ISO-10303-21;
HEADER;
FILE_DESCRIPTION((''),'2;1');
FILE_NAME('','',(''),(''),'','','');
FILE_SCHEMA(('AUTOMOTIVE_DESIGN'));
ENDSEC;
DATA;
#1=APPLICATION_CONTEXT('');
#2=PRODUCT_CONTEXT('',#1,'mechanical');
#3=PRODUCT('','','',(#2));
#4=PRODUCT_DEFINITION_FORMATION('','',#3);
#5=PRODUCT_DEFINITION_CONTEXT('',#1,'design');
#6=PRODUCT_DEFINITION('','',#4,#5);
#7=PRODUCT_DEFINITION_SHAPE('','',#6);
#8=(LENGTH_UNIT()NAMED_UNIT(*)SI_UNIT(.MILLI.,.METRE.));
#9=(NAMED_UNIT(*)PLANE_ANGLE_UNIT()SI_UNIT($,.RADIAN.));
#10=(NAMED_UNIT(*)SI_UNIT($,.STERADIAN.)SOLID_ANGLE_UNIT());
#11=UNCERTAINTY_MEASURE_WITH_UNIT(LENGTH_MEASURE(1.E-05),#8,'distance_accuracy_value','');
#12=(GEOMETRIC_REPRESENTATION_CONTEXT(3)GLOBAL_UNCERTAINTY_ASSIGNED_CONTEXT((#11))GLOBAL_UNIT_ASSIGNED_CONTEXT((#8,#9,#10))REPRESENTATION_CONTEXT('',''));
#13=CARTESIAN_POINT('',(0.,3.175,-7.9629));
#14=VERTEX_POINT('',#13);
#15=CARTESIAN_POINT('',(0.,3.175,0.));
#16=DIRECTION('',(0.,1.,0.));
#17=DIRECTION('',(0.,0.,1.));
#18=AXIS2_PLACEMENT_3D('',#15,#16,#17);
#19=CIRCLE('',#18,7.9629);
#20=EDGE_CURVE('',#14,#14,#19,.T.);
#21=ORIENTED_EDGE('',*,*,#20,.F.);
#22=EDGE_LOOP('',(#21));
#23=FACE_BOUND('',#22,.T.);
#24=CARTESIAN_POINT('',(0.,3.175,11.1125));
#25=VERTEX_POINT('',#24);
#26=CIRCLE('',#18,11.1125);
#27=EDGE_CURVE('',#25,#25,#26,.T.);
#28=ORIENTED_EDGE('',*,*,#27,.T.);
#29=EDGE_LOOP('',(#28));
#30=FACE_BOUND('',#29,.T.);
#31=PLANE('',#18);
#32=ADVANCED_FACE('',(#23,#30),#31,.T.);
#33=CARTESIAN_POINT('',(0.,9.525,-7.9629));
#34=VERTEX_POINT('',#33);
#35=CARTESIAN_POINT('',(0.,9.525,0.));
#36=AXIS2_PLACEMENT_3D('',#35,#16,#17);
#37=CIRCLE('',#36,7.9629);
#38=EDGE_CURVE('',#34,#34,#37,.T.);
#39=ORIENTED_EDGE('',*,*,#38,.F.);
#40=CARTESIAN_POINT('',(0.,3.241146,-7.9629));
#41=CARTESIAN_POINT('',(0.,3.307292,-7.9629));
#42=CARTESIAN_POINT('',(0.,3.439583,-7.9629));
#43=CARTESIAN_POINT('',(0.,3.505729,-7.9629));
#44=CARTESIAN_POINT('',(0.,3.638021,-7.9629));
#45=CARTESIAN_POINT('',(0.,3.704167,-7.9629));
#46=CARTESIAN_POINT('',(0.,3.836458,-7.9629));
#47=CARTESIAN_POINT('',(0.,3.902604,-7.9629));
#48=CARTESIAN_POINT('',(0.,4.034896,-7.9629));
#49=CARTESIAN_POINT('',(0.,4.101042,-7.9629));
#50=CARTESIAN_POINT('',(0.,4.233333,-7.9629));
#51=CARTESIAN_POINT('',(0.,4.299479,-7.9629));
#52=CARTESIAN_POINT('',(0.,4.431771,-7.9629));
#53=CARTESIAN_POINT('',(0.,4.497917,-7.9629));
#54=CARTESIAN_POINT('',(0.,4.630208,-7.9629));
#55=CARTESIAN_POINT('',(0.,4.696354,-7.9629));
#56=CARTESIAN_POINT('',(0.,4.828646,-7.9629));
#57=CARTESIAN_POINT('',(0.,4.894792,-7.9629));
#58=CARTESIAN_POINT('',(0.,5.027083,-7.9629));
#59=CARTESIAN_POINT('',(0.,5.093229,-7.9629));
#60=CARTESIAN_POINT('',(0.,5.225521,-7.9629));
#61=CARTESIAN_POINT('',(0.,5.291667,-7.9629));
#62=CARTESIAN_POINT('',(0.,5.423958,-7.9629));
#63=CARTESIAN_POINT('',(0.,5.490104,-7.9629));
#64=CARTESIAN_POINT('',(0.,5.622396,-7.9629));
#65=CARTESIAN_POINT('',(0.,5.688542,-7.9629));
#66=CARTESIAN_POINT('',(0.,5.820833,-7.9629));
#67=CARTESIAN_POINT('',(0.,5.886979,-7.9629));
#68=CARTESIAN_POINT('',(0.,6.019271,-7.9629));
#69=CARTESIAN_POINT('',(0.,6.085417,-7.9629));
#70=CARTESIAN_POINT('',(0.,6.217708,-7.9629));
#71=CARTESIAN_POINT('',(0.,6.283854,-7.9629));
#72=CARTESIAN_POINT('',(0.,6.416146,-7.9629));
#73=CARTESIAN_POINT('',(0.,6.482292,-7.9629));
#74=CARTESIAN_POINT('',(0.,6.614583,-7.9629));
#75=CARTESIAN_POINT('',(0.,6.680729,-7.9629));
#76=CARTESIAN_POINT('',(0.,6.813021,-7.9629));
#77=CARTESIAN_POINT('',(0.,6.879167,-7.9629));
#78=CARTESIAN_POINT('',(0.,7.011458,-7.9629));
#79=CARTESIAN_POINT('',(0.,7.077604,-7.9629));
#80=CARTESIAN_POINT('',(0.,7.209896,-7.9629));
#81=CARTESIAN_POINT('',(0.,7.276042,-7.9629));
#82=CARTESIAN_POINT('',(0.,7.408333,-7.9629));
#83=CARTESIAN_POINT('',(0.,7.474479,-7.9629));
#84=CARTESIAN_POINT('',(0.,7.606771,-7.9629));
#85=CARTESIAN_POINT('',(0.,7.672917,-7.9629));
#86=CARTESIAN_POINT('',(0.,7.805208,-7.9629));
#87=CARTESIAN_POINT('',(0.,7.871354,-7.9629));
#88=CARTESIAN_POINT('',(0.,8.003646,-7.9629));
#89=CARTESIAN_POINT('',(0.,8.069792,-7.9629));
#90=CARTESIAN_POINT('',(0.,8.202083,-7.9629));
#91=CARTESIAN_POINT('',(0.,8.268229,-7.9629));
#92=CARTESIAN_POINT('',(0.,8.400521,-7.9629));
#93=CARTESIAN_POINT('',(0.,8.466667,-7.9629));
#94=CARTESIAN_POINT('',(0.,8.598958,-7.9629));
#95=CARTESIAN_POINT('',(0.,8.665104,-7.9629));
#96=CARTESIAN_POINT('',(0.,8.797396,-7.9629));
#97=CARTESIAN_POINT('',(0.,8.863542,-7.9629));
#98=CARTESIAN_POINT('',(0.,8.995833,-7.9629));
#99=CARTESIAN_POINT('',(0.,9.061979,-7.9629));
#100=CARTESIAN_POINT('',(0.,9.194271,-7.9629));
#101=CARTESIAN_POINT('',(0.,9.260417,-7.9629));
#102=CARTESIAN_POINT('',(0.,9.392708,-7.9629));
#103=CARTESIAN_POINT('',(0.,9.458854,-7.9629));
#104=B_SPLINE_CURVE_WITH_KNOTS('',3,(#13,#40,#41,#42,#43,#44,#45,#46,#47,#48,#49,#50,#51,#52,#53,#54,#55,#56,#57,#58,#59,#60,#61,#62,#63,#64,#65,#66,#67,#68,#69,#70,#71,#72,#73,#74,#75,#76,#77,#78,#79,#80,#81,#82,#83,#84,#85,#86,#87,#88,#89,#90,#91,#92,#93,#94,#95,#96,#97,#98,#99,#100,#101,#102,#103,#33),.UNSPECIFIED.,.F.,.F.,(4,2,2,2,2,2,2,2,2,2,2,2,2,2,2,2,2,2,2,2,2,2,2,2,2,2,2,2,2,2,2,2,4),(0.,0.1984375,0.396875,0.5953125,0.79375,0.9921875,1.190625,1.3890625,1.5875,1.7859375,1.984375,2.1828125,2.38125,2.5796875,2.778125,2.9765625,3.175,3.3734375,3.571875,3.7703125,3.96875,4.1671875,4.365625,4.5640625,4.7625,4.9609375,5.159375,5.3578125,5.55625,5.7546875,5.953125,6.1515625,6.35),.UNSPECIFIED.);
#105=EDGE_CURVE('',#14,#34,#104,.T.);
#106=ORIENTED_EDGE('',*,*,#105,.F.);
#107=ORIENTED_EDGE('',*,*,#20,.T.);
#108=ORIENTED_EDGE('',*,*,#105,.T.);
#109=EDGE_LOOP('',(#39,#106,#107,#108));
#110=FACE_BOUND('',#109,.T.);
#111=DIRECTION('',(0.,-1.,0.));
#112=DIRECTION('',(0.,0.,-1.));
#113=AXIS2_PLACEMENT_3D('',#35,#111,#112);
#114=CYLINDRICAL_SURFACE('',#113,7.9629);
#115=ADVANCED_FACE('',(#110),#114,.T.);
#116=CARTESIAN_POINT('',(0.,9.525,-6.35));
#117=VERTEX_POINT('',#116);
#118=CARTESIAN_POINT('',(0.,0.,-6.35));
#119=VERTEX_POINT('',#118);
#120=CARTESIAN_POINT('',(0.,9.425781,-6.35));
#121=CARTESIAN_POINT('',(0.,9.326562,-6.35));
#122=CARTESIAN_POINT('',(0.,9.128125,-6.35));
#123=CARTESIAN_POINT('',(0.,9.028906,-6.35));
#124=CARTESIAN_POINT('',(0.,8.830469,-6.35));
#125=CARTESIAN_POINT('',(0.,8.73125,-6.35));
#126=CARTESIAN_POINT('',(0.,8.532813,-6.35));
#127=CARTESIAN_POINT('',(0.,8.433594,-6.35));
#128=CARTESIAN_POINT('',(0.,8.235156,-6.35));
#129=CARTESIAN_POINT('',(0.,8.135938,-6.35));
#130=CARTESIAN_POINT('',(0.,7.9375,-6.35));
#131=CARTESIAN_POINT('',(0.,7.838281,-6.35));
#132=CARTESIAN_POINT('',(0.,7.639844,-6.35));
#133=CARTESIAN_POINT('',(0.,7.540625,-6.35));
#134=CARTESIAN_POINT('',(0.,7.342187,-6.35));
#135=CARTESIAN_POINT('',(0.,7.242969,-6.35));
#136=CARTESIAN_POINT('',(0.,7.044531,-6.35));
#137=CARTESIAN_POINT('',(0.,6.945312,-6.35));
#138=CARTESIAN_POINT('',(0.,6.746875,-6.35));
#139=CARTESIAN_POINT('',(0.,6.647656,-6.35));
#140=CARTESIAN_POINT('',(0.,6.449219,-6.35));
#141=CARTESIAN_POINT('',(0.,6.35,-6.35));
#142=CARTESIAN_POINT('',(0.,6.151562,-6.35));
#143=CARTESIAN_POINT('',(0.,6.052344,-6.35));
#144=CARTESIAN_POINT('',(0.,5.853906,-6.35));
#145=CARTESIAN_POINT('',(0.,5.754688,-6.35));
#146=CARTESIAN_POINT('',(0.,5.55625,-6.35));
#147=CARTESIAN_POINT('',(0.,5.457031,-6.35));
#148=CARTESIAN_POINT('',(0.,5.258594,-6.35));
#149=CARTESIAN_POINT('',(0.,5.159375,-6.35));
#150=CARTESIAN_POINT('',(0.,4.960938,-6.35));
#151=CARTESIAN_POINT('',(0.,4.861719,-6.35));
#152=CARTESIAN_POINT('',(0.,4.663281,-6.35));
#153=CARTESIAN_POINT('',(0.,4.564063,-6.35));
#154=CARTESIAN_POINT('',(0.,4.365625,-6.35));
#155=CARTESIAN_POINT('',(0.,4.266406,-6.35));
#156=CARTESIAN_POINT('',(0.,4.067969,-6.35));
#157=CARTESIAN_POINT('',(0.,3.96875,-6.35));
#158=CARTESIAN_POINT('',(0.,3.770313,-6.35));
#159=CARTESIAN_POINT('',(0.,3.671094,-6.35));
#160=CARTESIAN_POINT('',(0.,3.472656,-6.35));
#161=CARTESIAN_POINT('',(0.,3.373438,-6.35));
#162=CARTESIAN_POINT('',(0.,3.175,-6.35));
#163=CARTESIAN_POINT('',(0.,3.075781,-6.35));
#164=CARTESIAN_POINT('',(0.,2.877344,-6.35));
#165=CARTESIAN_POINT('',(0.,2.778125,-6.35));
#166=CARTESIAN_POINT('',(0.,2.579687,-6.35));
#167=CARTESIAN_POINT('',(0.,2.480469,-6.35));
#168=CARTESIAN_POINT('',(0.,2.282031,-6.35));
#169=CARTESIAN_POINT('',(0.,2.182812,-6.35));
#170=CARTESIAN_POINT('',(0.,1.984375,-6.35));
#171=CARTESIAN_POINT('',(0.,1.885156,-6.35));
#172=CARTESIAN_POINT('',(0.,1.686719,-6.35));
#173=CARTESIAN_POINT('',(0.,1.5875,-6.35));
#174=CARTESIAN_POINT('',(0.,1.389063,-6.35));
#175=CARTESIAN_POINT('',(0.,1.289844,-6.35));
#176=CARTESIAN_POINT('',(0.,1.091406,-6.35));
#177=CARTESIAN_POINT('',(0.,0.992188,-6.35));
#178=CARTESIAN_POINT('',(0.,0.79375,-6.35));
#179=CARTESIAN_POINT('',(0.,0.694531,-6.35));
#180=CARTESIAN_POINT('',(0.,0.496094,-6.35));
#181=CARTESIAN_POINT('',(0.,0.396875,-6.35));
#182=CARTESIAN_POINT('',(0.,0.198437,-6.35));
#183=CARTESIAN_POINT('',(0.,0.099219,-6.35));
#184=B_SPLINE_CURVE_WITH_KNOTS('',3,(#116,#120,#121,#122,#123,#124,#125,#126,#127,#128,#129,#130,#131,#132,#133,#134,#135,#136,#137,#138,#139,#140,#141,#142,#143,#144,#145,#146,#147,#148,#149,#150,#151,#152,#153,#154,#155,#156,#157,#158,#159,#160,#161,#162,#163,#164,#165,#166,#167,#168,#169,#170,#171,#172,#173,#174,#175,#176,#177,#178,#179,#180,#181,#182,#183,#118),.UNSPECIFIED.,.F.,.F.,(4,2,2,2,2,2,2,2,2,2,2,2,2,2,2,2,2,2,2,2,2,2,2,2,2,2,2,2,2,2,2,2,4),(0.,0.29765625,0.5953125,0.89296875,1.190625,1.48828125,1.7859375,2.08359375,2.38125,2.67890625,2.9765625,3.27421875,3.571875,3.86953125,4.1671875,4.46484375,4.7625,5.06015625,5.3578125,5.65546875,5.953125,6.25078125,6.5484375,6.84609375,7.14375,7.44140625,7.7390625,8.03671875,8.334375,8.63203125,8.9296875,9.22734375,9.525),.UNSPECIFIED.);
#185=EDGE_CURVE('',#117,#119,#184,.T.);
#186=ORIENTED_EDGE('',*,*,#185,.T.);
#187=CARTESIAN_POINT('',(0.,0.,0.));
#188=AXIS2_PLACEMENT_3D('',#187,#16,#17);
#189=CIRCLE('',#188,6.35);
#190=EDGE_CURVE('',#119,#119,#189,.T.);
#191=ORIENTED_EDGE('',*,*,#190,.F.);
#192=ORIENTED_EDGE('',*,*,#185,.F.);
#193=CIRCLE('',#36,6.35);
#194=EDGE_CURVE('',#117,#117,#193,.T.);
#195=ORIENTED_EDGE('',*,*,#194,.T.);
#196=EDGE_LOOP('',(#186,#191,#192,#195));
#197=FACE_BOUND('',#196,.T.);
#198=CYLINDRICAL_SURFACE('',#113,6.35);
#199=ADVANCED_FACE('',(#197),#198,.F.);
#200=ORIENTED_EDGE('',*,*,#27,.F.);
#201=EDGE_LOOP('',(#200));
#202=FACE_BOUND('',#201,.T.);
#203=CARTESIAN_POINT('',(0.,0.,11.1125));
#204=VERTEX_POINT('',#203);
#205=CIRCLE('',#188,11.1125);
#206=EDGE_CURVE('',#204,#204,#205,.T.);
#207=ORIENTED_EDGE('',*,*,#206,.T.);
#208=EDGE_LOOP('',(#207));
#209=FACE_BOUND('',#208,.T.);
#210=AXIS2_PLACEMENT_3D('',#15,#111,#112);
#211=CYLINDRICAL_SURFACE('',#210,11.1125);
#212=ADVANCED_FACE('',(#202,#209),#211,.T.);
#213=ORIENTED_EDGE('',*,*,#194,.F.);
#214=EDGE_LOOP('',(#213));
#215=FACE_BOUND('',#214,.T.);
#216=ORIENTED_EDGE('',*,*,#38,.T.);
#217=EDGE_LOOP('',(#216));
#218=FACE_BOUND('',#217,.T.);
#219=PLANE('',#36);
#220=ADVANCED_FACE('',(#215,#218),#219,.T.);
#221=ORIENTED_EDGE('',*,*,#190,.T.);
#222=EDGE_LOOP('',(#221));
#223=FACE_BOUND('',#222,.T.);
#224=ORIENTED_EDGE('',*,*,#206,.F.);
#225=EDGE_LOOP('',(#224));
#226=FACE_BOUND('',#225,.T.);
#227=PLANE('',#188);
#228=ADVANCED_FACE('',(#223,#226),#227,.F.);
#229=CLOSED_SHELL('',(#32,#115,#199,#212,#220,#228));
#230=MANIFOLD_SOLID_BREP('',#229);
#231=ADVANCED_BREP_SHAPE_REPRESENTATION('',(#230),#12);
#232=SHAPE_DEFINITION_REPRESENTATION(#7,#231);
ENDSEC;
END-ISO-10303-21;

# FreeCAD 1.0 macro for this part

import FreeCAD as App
import Part
import Sketcher
Q = App.Units.Quantity

doc = App.newDocument("Part")
body = doc.addObject("PartDesign::Body", "Body")

sketch1 = body.newObject("Sketcher::SketchObject", "Sketch")
sketch1.AttachmentSupport = (doc.getObject("XZ_Plane"), [""])
sketch1.MapMode = "FlatFace"
sketch1.addGeometry(Part.Circle(App.Vector(0, 0, 0), App.Vector(0, 0, 1), 8), False)
sketch1.addGeometry(Part.Circle(App.Vector(0, 0, 0), App.Vector(0, 0, 1), 6), False)
sketch1.addConstraint(Sketcher.Constraint("Coincident", 0, 3, -1, 1))
sketch1.addConstraint(Sketcher.Constraint("Coincident", 1, 3, -1, 1))
sketch1.addConstraint(Sketcher.Constraint("Diameter", 1, Q("0.5 in")))
sketch1.addConstraint(Sketcher.Constraint("Diameter", 0, Q("0.627 in")))
pad1 = body.newObject("PartDesign::Pad", "Pad")
pad1.Profile = sketch1
pad1.Length = Q("0.375 in")
pad1.Reversed = True

sketch2 = body.newObject("Sketcher::SketchObject", "Sketch001")
sketch2.AttachmentSupport = (doc.getObject("XZ_Plane"), [""])
sketch2.MapMode = "FlatFace"
sketch2.addGeometry(Part.Circle(App.Vector(0, 0, 0), App.Vector(0, 0, 1), 11), False)
sketch2.addGeometry(Part.Circle(App.Vector(0, 0, 0), App.Vector(0, 0, 1), 8), False)
sketch2.addConstraint(Sketcher.Constraint("Coincident", 0, 3, -1, 1))
sketch2.addConstraint(Sketcher.Constraint("Coincident", 1, 3, -1, 1))
sketch2.addConstraint(Sketcher.Constraint("Diameter", 0, Q("0.875 in")))
sketch2.addConstraint(Sketcher.Constraint("Diameter", 1, Q("0.627 in")))
pad2 = body.newObject("PartDesign::Pad", "Pad001")
pad2.Profile = sketch2
pad2.Length = Q("0.125 in")
pad2.Reversed = True

doc.recompute()
